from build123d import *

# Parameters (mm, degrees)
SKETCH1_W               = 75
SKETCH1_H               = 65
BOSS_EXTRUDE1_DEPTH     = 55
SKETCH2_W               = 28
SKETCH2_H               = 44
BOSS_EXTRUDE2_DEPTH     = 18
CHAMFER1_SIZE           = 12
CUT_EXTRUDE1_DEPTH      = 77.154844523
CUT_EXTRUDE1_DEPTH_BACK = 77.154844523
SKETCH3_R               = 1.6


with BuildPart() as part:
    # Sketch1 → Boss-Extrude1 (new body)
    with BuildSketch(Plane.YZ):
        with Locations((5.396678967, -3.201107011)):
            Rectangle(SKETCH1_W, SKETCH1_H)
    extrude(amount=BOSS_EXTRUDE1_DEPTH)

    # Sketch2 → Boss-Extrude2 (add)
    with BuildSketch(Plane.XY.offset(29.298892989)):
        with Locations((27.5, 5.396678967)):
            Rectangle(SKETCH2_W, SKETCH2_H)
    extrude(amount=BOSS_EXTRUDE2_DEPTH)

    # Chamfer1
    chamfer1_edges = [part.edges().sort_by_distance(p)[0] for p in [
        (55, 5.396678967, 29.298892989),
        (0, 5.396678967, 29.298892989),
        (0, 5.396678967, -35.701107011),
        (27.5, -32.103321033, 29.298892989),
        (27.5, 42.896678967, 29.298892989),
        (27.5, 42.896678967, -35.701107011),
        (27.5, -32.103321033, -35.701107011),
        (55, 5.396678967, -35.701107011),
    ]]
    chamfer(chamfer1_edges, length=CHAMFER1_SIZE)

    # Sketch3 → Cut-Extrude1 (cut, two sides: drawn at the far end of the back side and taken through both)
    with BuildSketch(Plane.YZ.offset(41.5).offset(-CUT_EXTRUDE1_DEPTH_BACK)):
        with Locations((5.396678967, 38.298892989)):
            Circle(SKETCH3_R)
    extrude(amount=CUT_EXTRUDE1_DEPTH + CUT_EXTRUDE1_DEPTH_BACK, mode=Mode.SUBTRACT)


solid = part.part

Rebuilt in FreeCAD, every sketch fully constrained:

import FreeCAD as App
import Part
import Sketcher

V = App.Vector


def edges_at(feature, points):
    """Names of the edges that pass closest to the given points."""
    edges = feature.Shape.Edges
    near = lambda p: min(range(len(edges)), key=lambda i: edges[i].distToShape(Part.Vertex(*p))[0])
    return sorted({f"Edge{near(p) + 1}" for p in points})


def add_polygon(sketch, points):
    """Adds a closed chain of lines whose ends are joined by coincident constraints."""
    first, n = sketch.GeometryCount, len(points)
    for a, b in zip(points, points[1:] + points[:1]):
        sketch.addGeometry(Part.LineSegment(App.Vector(*a, 0), App.Vector(*b, 0)), False)
    for i in range(n):
        sketch.addConstraint(Sketcher.Constraint("Coincident", first + i, 2, first + (i + 1) % n, 1))

doc = App.newDocument("Part")
body = doc.addObject("PartDesign::Body", "Body")

# Sketch on YZ plane
sketch1 = body.newObject("Sketcher::SketchObject", "Sketch")
sketch1.AttachmentSupport = (doc.getObject("YZ_Plane"), [""])
sketch1.MapMode = "FlatFace"
add_polygon(sketch1, [(-32.103321, 29.298893), (-32.103321, -35.701107), (42.896679, -35.701107), (42.896679, 29.298893)])  # lines 0-3
sketch1.addConstraint([
    Sketcher.Constraint("Vertical", 0),
    Sketcher.Constraint("Horizontal", 1),
    Sketcher.Constraint("Vertical", 2),
    Sketcher.Constraint("Horizontal", 3),
    Sketcher.Constraint("DistanceX", 1, 1, 1, 2, 75.0),
    Sketcher.Constraint("DistanceY", 0, 2, 0, 1, 65.0),
    Sketcher.Constraint("DistanceX", 0, 2, -1, 1, 32.103321),
    Sketcher.Constraint("DistanceY", 0, 2, -1, 1, 35.701107),
])
pad1 = body.newObject("PartDesign::Pad", "Pad")
pad1.Profile = sketch1
pad1.Length = 55

# Sketch on XY plane
sketch2 = body.newObject("Sketcher::SketchObject", "Sketch001")
sketch2.AttachmentSupport = (doc.getObject("XY_Plane"), [""])
sketch2.MapMode = "FlatFace"
sketch2.AttachmentOffset = App.Placement(V(0, 0, 29.298893), App.Rotation())
add_polygon(sketch2, [(13.5, 27.396679), (13.5, -16.603321), (41.5, -16.603321), (41.5, 27.396679)])  # lines 0-3
sketch2.addConstraint([
    Sketcher.Constraint("Vertical", 0),
    Sketcher.Constraint("Horizontal", 1),
    Sketcher.Constraint("Vertical", 2),
    Sketcher.Constraint("Horizontal", 3),
    Sketcher.Constraint("DistanceX", 1, 1, 1, 2, 28.0),
    Sketcher.Constraint("DistanceY", 0, 2, 0, 1, 44.0),
    Sketcher.Constraint("DistanceX", -1, 1, 0, 2, 13.5),
    Sketcher.Constraint("DistanceY", 0, 2, -1, 1, 16.603321),
])
pad2 = body.newObject("PartDesign::Pad", "Pad001")
pad2.Profile = sketch2
pad2.Length = 18
doc.recompute()

chamfer = body.newObject("PartDesign::Chamfer", "Chamfer")
chamfer.Base = (pad2, edges_at(pad2, [
    (55, 5.397, 29.299),
    (0, 5.397, 29.299),
    (0, 5.397, -35.701),
    (27.5, -32.103, 29.299),
    (27.5, 42.897, 29.299),
    (27.5, 42.897, -35.701),
    (27.5, -32.103, -35.701),
    (55, 5.397, -35.701),
]))
chamfer.Size = 12

# Sketch on YZ plane
sketch3 = body.newObject("Sketcher::SketchObject", "Sketch002")
sketch3.AttachmentSupport = (doc.getObject("YZ_Plane"), [""])
sketch3.MapMode = "FlatFace"
sketch3.AttachmentOffset = App.Placement(V(0, 0, 41.5), App.Rotation())
sketch3.addGeometry(Part.Circle(V(5.396679, 38.298893, 0), V(0, 0, 1), 1.6), False)
sketch3.addConstraint([
    Sketcher.Constraint("Diameter", 0, 3.2),
    Sketcher.Constraint("DistanceX", -1, 1, 0, 3, 5.396679),
    Sketcher.Constraint("DistanceY", -1, 1, 0, 3, 38.298893),
])
pocket1 = body.newObject("PartDesign::Pocket", "Pocket")
pocket1.Profile = sketch3
pocket1.Type = "ThroughAll"
pocket1.Midplane = True

doc.recompute()
